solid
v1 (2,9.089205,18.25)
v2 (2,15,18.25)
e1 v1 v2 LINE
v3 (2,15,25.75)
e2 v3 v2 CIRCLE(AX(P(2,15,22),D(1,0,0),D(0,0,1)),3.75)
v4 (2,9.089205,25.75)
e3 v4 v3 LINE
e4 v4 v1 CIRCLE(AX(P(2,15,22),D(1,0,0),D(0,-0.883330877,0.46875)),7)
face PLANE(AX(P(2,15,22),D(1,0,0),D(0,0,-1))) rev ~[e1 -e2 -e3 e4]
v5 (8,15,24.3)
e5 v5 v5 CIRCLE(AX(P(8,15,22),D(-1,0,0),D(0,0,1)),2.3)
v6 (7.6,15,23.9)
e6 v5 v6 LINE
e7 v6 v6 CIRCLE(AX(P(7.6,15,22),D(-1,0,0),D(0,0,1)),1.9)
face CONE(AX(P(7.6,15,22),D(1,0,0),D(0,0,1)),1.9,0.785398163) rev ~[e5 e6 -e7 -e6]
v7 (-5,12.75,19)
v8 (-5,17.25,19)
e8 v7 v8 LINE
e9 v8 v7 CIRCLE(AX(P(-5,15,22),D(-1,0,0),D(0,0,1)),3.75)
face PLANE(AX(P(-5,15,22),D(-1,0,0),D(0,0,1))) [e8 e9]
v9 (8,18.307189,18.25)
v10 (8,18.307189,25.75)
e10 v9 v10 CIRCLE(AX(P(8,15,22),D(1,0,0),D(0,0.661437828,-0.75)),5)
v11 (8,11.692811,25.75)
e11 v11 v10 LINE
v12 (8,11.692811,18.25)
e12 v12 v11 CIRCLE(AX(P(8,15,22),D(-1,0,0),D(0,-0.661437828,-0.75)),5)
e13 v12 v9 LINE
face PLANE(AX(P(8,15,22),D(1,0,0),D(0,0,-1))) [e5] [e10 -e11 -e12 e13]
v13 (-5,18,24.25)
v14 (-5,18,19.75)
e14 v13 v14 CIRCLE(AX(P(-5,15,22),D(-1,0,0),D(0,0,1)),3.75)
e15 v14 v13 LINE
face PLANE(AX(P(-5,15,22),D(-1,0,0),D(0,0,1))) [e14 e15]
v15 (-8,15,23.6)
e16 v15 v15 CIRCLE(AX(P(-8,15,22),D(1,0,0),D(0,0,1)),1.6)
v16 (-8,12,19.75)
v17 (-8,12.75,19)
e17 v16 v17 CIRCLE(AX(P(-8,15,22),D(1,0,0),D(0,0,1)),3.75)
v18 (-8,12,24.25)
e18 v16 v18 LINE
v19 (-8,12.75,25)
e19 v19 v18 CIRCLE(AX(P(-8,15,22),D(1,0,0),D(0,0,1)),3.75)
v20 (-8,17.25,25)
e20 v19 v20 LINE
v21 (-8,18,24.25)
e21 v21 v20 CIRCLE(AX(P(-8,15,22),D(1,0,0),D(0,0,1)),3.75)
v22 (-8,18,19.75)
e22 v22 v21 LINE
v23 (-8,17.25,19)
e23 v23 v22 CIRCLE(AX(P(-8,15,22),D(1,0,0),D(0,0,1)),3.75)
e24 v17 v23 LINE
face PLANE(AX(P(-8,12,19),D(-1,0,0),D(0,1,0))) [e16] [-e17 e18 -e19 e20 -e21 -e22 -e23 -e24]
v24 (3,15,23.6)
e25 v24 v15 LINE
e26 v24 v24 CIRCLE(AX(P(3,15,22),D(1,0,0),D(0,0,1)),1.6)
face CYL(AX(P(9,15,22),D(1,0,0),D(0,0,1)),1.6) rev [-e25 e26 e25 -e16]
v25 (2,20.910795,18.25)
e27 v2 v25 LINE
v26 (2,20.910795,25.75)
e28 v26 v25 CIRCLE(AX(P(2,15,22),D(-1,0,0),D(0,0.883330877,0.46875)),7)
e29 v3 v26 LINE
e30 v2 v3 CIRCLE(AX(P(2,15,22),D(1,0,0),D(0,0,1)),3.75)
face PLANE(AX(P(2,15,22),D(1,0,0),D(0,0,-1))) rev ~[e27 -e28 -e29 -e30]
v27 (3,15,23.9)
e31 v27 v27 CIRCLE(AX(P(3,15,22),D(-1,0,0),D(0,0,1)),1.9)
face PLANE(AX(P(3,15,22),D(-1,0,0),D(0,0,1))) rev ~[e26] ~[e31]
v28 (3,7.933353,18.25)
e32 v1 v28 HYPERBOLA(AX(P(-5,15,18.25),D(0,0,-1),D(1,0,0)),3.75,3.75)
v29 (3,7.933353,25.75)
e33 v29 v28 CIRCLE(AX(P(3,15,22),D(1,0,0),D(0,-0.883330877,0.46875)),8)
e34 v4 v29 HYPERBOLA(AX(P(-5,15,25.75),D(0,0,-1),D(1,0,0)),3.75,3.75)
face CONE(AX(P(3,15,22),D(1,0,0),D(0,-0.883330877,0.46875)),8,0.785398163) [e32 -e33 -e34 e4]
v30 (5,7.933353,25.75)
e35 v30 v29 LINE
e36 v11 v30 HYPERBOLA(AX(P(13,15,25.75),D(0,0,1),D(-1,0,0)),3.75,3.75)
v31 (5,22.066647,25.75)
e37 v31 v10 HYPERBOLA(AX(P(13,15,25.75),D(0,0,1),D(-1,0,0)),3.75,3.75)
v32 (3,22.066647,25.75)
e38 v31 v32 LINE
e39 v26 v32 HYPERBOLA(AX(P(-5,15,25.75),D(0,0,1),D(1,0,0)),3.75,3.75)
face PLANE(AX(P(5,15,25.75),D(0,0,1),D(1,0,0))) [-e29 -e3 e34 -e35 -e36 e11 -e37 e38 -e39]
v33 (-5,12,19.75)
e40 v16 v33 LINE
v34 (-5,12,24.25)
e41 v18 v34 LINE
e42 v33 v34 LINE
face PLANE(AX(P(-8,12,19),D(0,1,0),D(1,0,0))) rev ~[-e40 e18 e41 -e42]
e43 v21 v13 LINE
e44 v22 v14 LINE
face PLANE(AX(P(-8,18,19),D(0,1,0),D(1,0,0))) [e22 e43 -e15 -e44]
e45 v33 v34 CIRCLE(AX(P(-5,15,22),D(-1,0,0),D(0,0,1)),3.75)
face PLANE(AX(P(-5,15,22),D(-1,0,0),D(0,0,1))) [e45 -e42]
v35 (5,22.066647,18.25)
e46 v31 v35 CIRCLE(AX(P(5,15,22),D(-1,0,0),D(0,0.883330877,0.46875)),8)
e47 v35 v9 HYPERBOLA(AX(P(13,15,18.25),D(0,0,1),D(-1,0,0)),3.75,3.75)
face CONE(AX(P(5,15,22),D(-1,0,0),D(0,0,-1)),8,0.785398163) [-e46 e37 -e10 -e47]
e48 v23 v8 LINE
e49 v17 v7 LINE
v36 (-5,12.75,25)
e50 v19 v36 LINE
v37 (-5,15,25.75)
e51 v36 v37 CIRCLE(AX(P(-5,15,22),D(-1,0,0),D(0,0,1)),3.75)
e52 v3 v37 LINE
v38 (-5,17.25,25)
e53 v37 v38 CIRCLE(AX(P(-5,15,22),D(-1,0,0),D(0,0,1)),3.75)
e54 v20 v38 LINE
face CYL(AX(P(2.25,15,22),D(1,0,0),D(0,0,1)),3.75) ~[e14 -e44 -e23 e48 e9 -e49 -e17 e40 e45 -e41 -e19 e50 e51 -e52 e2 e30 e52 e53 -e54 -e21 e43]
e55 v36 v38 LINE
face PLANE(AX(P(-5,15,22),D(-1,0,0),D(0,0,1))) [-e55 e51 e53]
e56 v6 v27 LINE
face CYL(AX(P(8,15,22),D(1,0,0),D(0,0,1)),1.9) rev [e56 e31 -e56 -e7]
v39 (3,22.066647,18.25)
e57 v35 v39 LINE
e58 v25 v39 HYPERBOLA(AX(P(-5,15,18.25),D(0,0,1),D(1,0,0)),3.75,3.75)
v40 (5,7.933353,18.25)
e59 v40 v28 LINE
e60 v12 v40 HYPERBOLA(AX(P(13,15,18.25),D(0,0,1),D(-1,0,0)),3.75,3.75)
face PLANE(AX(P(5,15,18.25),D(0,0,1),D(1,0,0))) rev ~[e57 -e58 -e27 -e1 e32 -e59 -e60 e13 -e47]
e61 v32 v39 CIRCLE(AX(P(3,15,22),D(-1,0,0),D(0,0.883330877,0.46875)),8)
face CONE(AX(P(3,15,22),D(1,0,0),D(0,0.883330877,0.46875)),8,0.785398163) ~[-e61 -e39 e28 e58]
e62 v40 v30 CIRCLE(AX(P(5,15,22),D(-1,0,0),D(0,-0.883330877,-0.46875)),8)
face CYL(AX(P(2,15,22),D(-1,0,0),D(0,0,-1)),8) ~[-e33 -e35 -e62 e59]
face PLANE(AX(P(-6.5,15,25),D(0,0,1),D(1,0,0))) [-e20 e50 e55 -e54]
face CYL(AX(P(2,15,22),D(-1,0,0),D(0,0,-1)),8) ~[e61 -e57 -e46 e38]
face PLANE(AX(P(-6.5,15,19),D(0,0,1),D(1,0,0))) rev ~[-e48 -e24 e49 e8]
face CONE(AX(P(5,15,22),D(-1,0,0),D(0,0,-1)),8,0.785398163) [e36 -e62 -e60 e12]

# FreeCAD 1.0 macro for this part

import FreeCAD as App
import Part
import Sketcher

V = App.Vector


def edges_at(feature, points):
    """Names of the edges that pass closest to the given points."""
    edges = feature.Shape.Edges
    near = lambda p: min(range(len(edges)), key=lambda i: edges[i].distToShape(Part.Vertex(*p))[0])
    return sorted({f"Edge{near(p) + 1}" for p in points})

doc = App.newDocument("Part")
body = doc.addObject("PartDesign::Body", "Body")

# Sketch on YZ plane
sketch1 = body.newObject("Sketcher::SketchObject", "Sketch")
sketch1.AttachmentSupport = (doc.getObject("YZ_Plane"), [""])
sketch1.MapMode = "FlatFace"
sketch1.AttachmentOffset = App.Placement(V(0, 0, 8.25), App.Rotation())
sketch1.addGeometry(Part.Circle(V(15, 22, 0), V(0, 0, 1), 1.9), False)
sketch1.addConstraint([
    Sketcher.Constraint("Diameter", 0, 3.8),
    Sketcher.Constraint("DistanceX", -1, 1, 0, 3, 15.0),
    Sketcher.Constraint("DistanceY", -1, 1, 0, 3, 22.0),
])
pad1 = body.newObject("PartDesign::Pad", "Pad")
pad1.Profile = sketch1
pad1.Length = 5
pad1.Reversed = True
body2 = doc.addObject("PartDesign::Body", "Body001")

# Sketch on YZ plane
sketch2 = body2.newObject("Sketcher::SketchObject", "Sketch001")
sketch2.AttachmentSupport = (doc.getObject("YZ_Plane001"), [""])
sketch2.MapMode = "FlatFace"
sketch2.AttachmentOffset = App.Placement(V(0, 0, 9.25), App.Rotation())
sketch2.addGeometry(Part.Circle(V(15, 22, 0), V(0, 0, 1), 1.6), False)
sketch2.addConstraint([
    Sketcher.Constraint("Diameter", 0, 3.2),
    Sketcher.Constraint("DistanceX", -1, 1, 0, 3, 15.0),
    Sketcher.Constraint("DistanceY", -1, 1, 0, 3, 22.0),
])
pad2 = body2.newObject("PartDesign::Pad", "Pad001")
pad2.Profile = sketch2
pad2.Length = 30.25
pad2.Reversed = True
doc.recompute()

boolean = body2.newObject("PartDesign::Boolean", "Boolean")
boolean.Type = "Fuse"
boolean.addObjects([body])
body3 = doc.addObject("PartDesign::Body", "Body002")
doc.recompute()

body2.Placement = App.Placement(V(-0.25, 0, 0), App.Rotation(V(0, 0, 1), 0))
boolean2 = body3.newObject("PartDesign::Boolean", "Boolean001")
boolean2.Type = "Fuse"
boolean2.addObjects([body2])
body4 = doc.addObject("PartDesign::Body", "Body003")

# Sketch on YZ plane
sketch3 = body4.newObject("Sketcher::SketchObject", "Sketch002")
sketch3.AttachmentSupport = (doc.getObject("YZ_Plane003"), [""])
sketch3.MapMode = "FlatFace"
sketch3.AttachmentOffset = App.Placement(V(0, 0, 2.25), App.Rotation())
sketch3.addGeometry(Part.Circle(V(15, 22, 0), V(0, 0, 1), 3.75), False)
sketch3.addConstraint([
    Sketcher.Constraint("Diameter", 0, 7.5),
    Sketcher.Constraint("DistanceX", -1, 1, 0, 3, 15.0),
    Sketcher.Constraint("DistanceY", -1, 1, 0, 3, 22.0),
])
pad3 = body4.newObject("PartDesign::Pad", "Pad002")
pad3.Profile = sketch3
pad3.Length = 7.25
pad3.Reversed = True
body5 = doc.addObject("PartDesign::Body", "Body004")

# Sketch on XY plane
sketch4 = body5.newObject("Sketcher::SketchObject", "Sketch003")
sketch4.AttachmentSupport = (doc.getObject("XY_Plane004"), [""])
sketch4.MapMode = "FlatFace"
sketch4.AttachmentOffset = App.Placement(V(0, 0, 18.25), App.Rotation())
sketch4.addGeometry([
    Part.LineSegment(V(2, 23, 0), V(2, 7, 0)),
    Part.LineSegment(V(2, 7, 0), V(8, 7, 0)),
    Part.LineSegment(V(8, 7, 0), V(8, 23, 0)),
    Part.LineSegment(V(8, 23, 0), V(2, 23, 0)),
], False)
sketch4.addConstraint([
    Sketcher.Constraint("Coincident", 0, 2, 1, 1),
    Sketcher.Constraint("Coincident", 1, 2, 2, 1),
    Sketcher.Constraint("Coincident", 2, 2, 3, 1),
    Sketcher.Constraint("Coincident", 3, 2, 0, 1),
    Sketcher.Constraint("Vertical", 0),
    Sketcher.Constraint("Horizontal", 1),
    Sketcher.Constraint("Vertical", 2),
    Sketcher.Constraint("Horizontal", 3),
    Sketcher.Constraint("DistanceX", 1, 1, 1, 2, 6.0),
    Sketcher.Constraint("DistanceY", 0, 2, 0, 1, 16.0),
    Sketcher.Constraint("DistanceX", -1, 1, 0, 2, 2.0),
    Sketcher.Constraint("DistanceY", -1, 1, 0, 2, 7.0),
])
pad4 = body5.newObject("PartDesign::Pad", "Pad003")
pad4.Profile = sketch4
pad4.Length = 7.5
doc.recompute()

chamfer = body5.newObject("PartDesign::Chamfer", "Chamfer")
chamfer.Base = (pad4, edges_at(pad4, [(8, 7, 22), (8, 23, 22)]))
chamfer.Size = 3
body6 = doc.addObject("PartDesign::Body", "Body005")
doc.recompute()

body5.Placement = App.Placement(V(0.25, 0, 0), App.Rotation(V(0, 0, 1), 0))
boolean3 = body6.newObject("PartDesign::Boolean", "Boolean002")
boolean3.Type = "Fuse"
boolean3.addObjects([body5])
body7 = doc.addObject("PartDesign::Body", "Body006")

# Sketch on YZ plane
sketch5 = body7.newObject("Sketcher::SketchObject", "Sketch004")
sketch5.AttachmentSupport = (doc.getObject("YZ_Plane006"), [""])
sketch5.MapMode = "FlatFace"
sketch5.AttachmentOffset = App.Placement(V(0, 0, 2.25), App.Rotation())
sketch5.addGeometry(Part.Circle(V(15, 22, 0), V(0, 0, 1), 8), False)
sketch5.addConstraint([
    Sketcher.Constraint("Diameter", 0, 16.0),
    Sketcher.Constraint("DistanceX", -1, 1, 0, 3, 15.0),
    Sketcher.Constraint("DistanceY", -1, 1, 0, 3, 22.0),
])
pad5 = body7.newObject("PartDesign::Pad", "Pad004")
pad5.Profile = sketch5
pad5.Length = 6
doc.recompute()

chamfer2 = body7.newObject("PartDesign::Chamfer", "Chamfer001")
chamfer2.Base = (pad5, edges_at(pad5, [(8.25, 15, 30)]))
chamfer2.Size = 3
doc.recompute()

boolean4 = body7.newObject("PartDesign::Boolean", "Boolean003")
boolean4.Type = "Common"
boolean4.addObjects([body6])
body8 = doc.addObject("PartDesign::Body", "Body007")
doc.recompute()

body7.Placement = App.Placement(V(-0.25, 0, 0), App.Rotation(V(0, 0, 1), 0))
boolean5 = body8.newObject("PartDesign::Boolean", "Boolean004")
boolean5.Type = "Fuse"
boolean5.addObjects([body7])
body9 = doc.addObject("PartDesign::Body", "Body008")

# Sketch on XY plane
sketch6 = body9.newObject("Sketcher::SketchObject", "Sketch005")
sketch6.AttachmentSupport = (doc.getObject("XY_Plane008"), [""])
sketch6.MapMode = "FlatFace"
sketch6.AttachmentOffset = App.Placement(V(0, 0, 19), App.Rotation())
sketch6.addGeometry([
    Part.LineSegment(V(-8, 18, 0), V(-8, 12, 0)),
    Part.LineSegment(V(-8, 12, 0), V(-5, 12, 0)),
    Part.LineSegment(V(-5, 12, 0), V(-5, 18, 0)),
    Part.LineSegment(V(-5, 18, 0), V(-8, 18, 0)),
], False)
sketch6.addConstraint([
    Sketcher.Constraint("Coincident", 0, 2, 1, 1),
    Sketcher.Constraint("Coincident", 1, 2, 2, 1),
    Sketcher.Constraint("Coincident", 2, 2, 3, 1),
    Sketcher.Constraint("Coincident", 3, 2, 0, 1),
    Sketcher.Constraint("Vertical", 0),
    Sketcher.Constraint("Horizontal", 1),
    Sketcher.Constraint("Vertical", 2),
    Sketcher.Constraint("Horizontal", 3),
    Sketcher.Constraint("DistanceX", 1, 1, 1, 2, 3.0),
    Sketcher.Constraint("DistanceY", 0, 2, 0, 1, 6.0),
    Sketcher.Constraint("DistanceX", 0, 2, -1, 1, 8.0),
    Sketcher.Constraint("DistanceY", -1, 1, 0, 2, 12.0),
])
pad6 = body9.newObject("PartDesign::Pad", "Pad005")
pad6.Profile = sketch6
pad6.Length = 6
body10 = doc.addObject("PartDesign::Body", "Body009")

# Sketch on YZ plane
sketch7 = body10.newObject("Sketcher::SketchObject", "Sketch006")
sketch7.AttachmentSupport = (doc.getObject("YZ_Plane009"), [""])
sketch7.MapMode = "FlatFace"
sketch7.AttachmentOffset = App.Placement(V(0, 0, -3.75), App.Rotation())
sketch7.addGeometry(Part.Circle(V(15, 22, 0), V(0, 0, 1), 3.75), False)
sketch7.addConstraint([
    Sketcher.Constraint("Diameter", 0, 7.5),
    Sketcher.Constraint("DistanceX", -1, 1, 0, 3, 15.0),
    Sketcher.Constraint("DistanceY", -1, 1, 0, 3, 22.0),
])
pad7 = body10.newObject("PartDesign::Pad", "Pad006")
pad7.Profile = sketch7
pad7.Length = 7.25
pad7.Reversed = True
doc.recompute()

boolean6 = body10.newObject("PartDesign::Boolean", "Boolean005")
boolean6.Type = "Common"
boolean6.addObjects([body9])
doc.recompute()

boolean7 = body10.newObject("PartDesign::Boolean", "Boolean006")
boolean7.Type = "Fuse"
boolean7.addObjects([body4])
doc.recompute()

boolean8 = body10.newObject("PartDesign::Boolean", "Boolean007")
boolean8.Type = "Fuse"
boolean8.addObjects([body8])
doc.recompute()

boolean9 = body10.newObject("PartDesign::Boolean", "Boolean008")
boolean9.Type = "Cut"
boolean9.addObjects([body3])
doc.recompute()

chamfer3 = body10.newObject("PartDesign::Chamfer", "Chamfer002")
chamfer3.Base = (boolean9, edges_at(boolean9, [(8, 15, 20.1)]))
chamfer3.Size = 0.4
doc.recompute()

chamfer4 = body10.newObject("PartDesign::Chamfer", "Chamfer003")
chamfer4.Base = (chamfer3, edges_at(chamfer3, [
    (2, 23, 22),
    (2, 23, 22),
    (2, 7, 22),
    (2, 7, 22),
]))
chamfer4.Size = 1

doc.recompute()
